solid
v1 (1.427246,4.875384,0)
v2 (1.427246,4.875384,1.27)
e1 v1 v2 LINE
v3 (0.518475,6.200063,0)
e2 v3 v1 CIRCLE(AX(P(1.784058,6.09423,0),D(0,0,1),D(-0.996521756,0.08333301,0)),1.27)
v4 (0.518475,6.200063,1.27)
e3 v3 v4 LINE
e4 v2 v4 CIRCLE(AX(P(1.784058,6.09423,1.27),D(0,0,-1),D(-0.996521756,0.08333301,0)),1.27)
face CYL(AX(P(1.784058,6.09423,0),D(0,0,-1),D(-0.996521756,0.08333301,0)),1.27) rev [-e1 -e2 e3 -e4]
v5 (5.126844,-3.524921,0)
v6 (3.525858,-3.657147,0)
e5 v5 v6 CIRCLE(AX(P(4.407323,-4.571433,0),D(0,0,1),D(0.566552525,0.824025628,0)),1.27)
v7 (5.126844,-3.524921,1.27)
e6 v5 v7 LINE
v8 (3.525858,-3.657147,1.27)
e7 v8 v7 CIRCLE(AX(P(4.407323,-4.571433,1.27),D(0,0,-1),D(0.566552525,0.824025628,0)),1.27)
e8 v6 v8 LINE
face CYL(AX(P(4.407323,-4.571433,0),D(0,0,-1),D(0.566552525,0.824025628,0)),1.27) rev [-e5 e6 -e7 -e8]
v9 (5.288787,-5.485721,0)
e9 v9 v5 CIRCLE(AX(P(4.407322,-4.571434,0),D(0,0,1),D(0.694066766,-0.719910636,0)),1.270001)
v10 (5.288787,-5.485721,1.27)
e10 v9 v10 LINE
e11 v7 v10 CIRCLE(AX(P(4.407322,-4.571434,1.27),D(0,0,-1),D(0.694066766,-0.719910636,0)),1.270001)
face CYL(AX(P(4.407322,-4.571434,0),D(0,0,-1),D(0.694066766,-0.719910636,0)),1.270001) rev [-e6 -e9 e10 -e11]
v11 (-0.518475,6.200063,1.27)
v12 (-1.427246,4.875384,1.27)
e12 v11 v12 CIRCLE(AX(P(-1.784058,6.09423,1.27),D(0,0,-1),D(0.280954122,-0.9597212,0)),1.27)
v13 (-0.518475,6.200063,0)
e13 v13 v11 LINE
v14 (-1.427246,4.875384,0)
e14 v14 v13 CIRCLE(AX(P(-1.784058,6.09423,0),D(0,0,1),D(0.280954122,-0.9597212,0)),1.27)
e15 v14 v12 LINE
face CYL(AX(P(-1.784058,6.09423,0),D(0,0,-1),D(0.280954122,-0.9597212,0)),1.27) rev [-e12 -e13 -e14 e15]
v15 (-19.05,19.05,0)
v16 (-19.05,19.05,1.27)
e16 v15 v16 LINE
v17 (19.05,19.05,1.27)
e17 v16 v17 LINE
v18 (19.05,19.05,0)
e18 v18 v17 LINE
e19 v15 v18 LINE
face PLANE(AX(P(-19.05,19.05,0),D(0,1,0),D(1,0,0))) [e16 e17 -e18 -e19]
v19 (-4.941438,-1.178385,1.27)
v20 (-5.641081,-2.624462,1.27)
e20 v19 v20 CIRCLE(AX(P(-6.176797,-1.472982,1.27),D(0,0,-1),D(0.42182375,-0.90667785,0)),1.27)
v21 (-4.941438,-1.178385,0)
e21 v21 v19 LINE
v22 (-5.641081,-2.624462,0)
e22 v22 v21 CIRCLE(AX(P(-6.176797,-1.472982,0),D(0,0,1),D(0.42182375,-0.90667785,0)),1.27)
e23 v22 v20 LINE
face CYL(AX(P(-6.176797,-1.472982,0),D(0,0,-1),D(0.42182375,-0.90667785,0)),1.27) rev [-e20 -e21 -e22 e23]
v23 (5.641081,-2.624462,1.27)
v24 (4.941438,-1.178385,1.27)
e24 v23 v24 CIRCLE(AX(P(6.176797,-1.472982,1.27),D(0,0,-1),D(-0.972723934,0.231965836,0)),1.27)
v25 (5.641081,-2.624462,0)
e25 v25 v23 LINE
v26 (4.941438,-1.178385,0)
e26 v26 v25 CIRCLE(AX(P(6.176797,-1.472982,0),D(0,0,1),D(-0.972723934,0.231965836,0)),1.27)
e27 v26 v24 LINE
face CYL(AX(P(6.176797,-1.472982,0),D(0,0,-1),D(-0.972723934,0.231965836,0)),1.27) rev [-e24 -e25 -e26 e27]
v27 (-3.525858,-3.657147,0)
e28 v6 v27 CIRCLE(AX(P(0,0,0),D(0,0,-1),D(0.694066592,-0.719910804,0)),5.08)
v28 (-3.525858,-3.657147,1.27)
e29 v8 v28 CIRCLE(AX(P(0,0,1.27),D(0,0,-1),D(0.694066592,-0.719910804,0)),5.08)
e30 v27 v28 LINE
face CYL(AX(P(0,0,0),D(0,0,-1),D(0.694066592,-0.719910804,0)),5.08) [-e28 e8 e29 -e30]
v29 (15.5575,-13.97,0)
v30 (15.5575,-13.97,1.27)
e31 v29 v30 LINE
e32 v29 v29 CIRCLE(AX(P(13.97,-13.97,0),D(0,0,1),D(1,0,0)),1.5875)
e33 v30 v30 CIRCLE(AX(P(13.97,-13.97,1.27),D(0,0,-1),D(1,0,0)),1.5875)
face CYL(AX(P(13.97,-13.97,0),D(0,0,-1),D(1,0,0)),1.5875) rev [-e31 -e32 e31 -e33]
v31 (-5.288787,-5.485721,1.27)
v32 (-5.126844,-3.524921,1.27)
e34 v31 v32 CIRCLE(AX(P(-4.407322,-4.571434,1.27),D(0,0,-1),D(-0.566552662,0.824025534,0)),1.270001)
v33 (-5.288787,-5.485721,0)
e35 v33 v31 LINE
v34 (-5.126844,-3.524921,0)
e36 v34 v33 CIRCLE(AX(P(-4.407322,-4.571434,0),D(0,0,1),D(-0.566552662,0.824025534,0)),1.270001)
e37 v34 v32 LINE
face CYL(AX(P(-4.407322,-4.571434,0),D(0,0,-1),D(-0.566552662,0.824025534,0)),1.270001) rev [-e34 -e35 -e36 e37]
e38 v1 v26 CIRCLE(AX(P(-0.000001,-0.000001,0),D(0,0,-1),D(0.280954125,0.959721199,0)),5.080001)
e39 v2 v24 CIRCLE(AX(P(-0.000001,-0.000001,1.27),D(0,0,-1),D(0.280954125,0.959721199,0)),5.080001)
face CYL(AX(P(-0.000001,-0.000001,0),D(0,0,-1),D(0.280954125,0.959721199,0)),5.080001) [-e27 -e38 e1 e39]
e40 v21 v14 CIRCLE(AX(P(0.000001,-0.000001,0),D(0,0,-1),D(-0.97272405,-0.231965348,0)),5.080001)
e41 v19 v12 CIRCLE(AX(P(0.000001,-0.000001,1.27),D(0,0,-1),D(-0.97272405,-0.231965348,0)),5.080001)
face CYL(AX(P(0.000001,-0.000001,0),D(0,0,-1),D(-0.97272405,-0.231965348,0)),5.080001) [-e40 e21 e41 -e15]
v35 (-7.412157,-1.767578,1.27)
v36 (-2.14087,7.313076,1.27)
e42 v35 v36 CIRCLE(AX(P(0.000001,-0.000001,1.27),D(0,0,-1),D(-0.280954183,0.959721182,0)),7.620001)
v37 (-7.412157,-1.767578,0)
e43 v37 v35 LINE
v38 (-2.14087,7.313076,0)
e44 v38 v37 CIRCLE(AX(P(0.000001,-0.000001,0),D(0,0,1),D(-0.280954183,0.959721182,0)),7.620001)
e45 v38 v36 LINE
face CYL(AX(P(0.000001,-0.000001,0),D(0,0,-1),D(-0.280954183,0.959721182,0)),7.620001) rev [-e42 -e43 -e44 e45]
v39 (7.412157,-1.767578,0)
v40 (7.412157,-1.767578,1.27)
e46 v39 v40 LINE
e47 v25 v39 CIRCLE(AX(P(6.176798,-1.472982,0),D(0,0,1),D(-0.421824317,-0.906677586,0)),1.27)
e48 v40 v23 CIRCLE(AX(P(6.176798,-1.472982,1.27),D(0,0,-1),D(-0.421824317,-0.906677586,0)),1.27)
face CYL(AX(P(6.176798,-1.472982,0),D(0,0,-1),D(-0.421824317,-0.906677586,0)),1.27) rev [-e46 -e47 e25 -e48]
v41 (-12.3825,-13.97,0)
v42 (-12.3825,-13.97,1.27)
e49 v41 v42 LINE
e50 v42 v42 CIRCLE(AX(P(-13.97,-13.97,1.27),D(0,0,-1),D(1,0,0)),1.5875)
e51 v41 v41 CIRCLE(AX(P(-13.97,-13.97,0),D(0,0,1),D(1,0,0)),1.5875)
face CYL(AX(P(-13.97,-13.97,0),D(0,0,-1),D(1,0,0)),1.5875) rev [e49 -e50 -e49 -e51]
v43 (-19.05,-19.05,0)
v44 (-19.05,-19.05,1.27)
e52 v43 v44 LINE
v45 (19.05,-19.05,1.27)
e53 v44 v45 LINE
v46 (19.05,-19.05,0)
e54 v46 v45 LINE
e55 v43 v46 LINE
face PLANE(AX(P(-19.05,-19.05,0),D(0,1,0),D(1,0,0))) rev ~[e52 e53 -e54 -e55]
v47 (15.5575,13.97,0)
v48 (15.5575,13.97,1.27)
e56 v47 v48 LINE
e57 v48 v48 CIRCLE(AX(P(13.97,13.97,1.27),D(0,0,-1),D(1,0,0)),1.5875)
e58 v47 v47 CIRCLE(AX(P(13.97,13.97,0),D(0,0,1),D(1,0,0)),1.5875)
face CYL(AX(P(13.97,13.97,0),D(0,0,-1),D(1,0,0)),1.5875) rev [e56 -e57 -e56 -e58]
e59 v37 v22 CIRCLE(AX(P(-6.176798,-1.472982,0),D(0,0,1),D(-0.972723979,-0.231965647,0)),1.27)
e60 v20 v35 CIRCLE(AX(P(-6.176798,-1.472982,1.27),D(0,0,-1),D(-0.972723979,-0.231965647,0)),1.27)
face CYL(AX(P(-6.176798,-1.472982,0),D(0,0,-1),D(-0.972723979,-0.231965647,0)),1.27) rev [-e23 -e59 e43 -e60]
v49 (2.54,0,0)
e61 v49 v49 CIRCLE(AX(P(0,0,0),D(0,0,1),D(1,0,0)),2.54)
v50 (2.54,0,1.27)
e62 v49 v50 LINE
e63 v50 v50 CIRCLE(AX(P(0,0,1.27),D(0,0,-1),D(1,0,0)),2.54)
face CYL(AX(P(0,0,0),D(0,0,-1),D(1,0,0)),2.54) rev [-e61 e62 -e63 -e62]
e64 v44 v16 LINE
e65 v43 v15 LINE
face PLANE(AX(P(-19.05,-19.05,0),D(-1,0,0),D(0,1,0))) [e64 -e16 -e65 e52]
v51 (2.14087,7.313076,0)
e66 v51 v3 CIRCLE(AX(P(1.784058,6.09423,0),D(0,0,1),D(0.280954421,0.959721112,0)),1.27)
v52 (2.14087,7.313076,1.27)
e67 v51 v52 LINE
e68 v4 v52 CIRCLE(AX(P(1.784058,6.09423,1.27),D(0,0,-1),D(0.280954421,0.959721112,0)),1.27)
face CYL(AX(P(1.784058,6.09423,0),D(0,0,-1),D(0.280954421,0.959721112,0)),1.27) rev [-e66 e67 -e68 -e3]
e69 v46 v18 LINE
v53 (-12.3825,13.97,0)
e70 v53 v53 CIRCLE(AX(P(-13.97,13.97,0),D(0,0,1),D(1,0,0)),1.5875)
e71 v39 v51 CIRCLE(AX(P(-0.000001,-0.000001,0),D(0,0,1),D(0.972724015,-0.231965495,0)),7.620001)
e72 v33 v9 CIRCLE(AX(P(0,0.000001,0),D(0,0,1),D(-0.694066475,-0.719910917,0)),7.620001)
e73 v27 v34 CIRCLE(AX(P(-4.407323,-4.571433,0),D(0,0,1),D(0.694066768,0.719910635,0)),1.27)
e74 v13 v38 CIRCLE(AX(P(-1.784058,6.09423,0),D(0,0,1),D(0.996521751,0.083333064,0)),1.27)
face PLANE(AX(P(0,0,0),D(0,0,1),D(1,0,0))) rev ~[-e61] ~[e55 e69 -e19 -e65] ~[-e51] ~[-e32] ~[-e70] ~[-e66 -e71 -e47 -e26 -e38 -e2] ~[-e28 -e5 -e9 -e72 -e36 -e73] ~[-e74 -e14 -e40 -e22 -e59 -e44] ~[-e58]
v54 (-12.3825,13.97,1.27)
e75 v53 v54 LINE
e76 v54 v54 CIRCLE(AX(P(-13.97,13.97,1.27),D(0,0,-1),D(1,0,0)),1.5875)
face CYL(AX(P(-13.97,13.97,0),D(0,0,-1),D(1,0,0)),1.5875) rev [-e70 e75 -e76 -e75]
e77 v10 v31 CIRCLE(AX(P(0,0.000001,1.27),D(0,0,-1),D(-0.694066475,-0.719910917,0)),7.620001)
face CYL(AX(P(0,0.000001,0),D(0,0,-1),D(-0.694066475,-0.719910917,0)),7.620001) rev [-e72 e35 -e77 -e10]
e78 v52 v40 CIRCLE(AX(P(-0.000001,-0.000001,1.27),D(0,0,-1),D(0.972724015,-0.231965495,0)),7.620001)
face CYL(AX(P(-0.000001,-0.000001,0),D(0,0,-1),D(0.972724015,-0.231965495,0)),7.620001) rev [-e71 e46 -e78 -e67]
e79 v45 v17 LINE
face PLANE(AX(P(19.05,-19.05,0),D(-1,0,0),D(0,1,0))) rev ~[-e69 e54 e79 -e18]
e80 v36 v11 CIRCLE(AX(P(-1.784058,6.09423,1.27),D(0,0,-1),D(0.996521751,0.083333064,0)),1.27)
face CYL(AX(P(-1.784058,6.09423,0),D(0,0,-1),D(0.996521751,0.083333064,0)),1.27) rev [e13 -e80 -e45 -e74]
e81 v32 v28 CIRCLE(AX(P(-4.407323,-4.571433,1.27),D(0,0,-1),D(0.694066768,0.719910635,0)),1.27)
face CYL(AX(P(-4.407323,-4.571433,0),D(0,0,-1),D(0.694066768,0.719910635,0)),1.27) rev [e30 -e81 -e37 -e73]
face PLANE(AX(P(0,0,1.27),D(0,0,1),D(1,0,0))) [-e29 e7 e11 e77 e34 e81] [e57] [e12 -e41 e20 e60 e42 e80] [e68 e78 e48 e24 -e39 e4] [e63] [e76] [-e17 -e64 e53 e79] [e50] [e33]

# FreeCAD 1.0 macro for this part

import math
import FreeCAD as App
import Part
import Sketcher

V = App.Vector
Q = App.Units.Quantity


def add_polygon(sketch, points):
    """Adds a closed chain of lines whose ends are joined by coincident constraints."""
    first, n = sketch.GeometryCount, len(points)
    for a, b in zip(points, points[1:] + points[:1]):
        sketch.addGeometry(Part.LineSegment(App.Vector(*a, 0), App.Vector(*b, 0)), False)
    for i in range(n):
        sketch.addConstraint(Sketcher.Constraint("Coincident", first + i, 2, first + (i + 1) % n, 1))

doc = App.newDocument("Part")
body = doc.addObject("PartDesign::Body", "Body")

sketch1 = doc.addObject("Sketcher::SketchObject", "Sketch")
body.addObject(sketch1)
sketch1.AttachmentSupport = (doc.XY_Plane, [""])
sketch1.MapMode = "FlatFace"
add_polygon(sketch1, [(-19, 19), (-19, -19), (19, -19), (19, 19)])
sketch1.addConstraint([
    Sketcher.Constraint("Vertical", 0),
    Sketcher.Constraint("Horizontal", 1),
    Sketcher.Constraint("Vertical", 2),
    Sketcher.Constraint("Horizontal", 3),
    Sketcher.Constraint("Symmetric", 0, 2, 2, 2, -1, 1),
    Sketcher.Constraint("Equal", 3, 0),
    Sketcher.Constraint("DistanceX", 1, 1, 1, 2, Q("1.5 in")),
])
pad1 = doc.addObject("PartDesign::Pad", "Pad")
body.addObject(pad1)
pad1.Profile = sketch1
pad1.Length = Q("0.05 in")

sketch2 = doc.addObject("Sketcher::SketchObject", "Sketch001")
body.addObject(sketch2)
sketch2.AttachmentSupport = (doc.XY_Plane, [""])
sketch2.MapMode = "FlatFace"
sketch2.addGeometry([
    Part.ArcOfCircle(Part.Circle(V(-1.8, 6.1, 0), V(0, 0, 1), 1.3), math.radians(5), math.radians(106)),
    Part.ArcOfCircle(Part.Circle(V(0, 0, 0), V(0, 0, 1), 7.6), math.radians(106), math.radians(193)),
    Part.ArcOfCircle(Part.Circle(V(-6.2, -1.5, 0), V(0, 0, 1), 1.3), math.radians(-167), math.radians(-65)),
    Part.ArcOfCircle(Part.Circle(V(-6.2, -1.5, 0), V(0, 0, 1), 1.3), math.radians(-65), math.radians(13)),
    Part.ArcOfCircle(Part.Circle(V(0, 0, 0), V(0, 0, 1), 5.1), math.radians(106), math.radians(193)),
    Part.ArcOfCircle(Part.Circle(V(-1.8, 6.1, 0), V(0, 0, 1), 1.3), math.radians(-74), math.radians(5)),
    Part.ArcOfCircle(Part.Circle(V(6.2, -1.5, 0), V(0, 0, 1), 1.3), math.radians(-115), math.radians(-13)),
    Part.ArcOfCircle(Part.Circle(V(0, 0, 0), V(0, 0, 1), 7.6), math.radians(-13), math.radians(74)),
    Part.ArcOfCircle(Part.Circle(V(1.8, 6.1, 0), V(0, 0, 1), 1.3), math.radians(74), math.radians(175)),
    Part.ArcOfCircle(Part.Circle(V(1.8, 6.1, 0), V(0, 0, 1), 1.3), math.radians(175), math.radians(254)),
    Part.ArcOfCircle(Part.Circle(V(0, 0, 0), V(0, 0, 1), 5.1), math.radians(-13), math.radians(74)),
    Part.ArcOfCircle(Part.Circle(V(6.2, -1.5, 0), V(0, 0, 1), 1.3), math.radians(167), math.radians(245)),
    Part.ArcOfCircle(Part.Circle(V(-4.4, -4.6, 0), V(0, 0, 1), 1.3), math.radians(125), math.radians(226)),
    Part.ArcOfCircle(Part.Circle(V(0, 0, 0), V(0, 0, 1), 7.6), math.radians(-134), math.radians(-46)),
    Part.ArcOfCircle(Part.Circle(V(4.4, -4.6, 0), V(0, 0, 1), 1.3), math.radians(-46), math.radians(55)),
    Part.ArcOfCircle(Part.Circle(V(4.4, -4.6, 0), V(0, 0, 1), 1.3), math.radians(55), math.radians(134)),
    Part.ArcOfCircle(Part.Circle(V(0, 0, 0), V(0, 0, 1), 5.1), math.radians(-134), math.radians(-46)),
    Part.ArcOfCircle(Part.Circle(V(-4.4, -4.6, 0), V(0, 0, 1), 1.3), math.radians(46), math.radians(125)),
], False)
sketch2.addConstraint([
    Sketcher.Constraint("Tangent", 0, 2, 1, 1),
    Sketcher.Constraint("Tangent", 1, 2, 2, 1),
    Sketcher.Constraint("Tangent", 2, 2, 3, 1),
    Sketcher.Constraint("Tangent", 3, 2, 4, 2),
    Sketcher.Constraint("Tangent", 4, 1, 5, 1),
    Sketcher.Constraint("Tangent", 5, 2, 0, 1),
    Sketcher.Constraint("Tangent", 6, 2, 7, 1),
    Sketcher.Constraint("Tangent", 7, 2, 8, 1),
    Sketcher.Constraint("Tangent", 8, 2, 9, 1),
    Sketcher.Constraint("Tangent", 9, 2, 10, 2),
    Sketcher.Constraint("Tangent", 10, 1, 11, 1),
    Sketcher.Constraint("Tangent", 11, 2, 6, 1),
    Sketcher.Constraint("Tangent", 12, 2, 13, 1),
    Sketcher.Constraint("Tangent", 13, 2, 14, 1),
    Sketcher.Constraint("Tangent", 14, 2, 15, 1),
    Sketcher.Constraint("Tangent", 15, 2, 16, 2),
    Sketcher.Constraint("Tangent", 16, 1, 17, 1),
    Sketcher.Constraint("Tangent", 17, 2, 12, 1),
    Sketcher.Constraint("Coincident", 1, 3, -1, 1),
    Sketcher.Constraint("Coincident", 4, 3, -1, 1),
    Sketcher.Constraint("Coincident", 7, 3, -1, 1),
    Sketcher.Constraint("Coincident", 10, 3, -1, 1),
    Sketcher.Constraint("Coincident", 13, 3, -1, 1),
    Sketcher.Constraint("Coincident", 16, 3, -1, 1),
    Sketcher.Constraint("Equal", 0, 2),
    Sketcher.Constraint("Equal", 2, 3),
    Sketcher.Constraint("Equal", 5, 6),
    Sketcher.Constraint("Equal", 1, 7),
    Sketcher.Constraint("Equal", 6, 8),
    Sketcher.Constraint("Equal", 8, 9),
    Sketcher.Constraint("Equal", 11, 12),
    Sketcher.Constraint("Equal", 7, 13),
    Sketcher.Constraint("Equal", 12, 14),
    Sketcher.Constraint("Equal", 14, 15),
    Sketcher.Constraint("Symmetric", 5, 2, 8, 2, -2),
    Sketcher.Constraint("Symmetric", 2, 2, 11, 2, -2),
    Sketcher.Constraint("Symmetric", 14, 2, 17, 2, -2),
    Sketcher.Constraint("Radius", 1, Q("0.3000001 in")),
    Sketcher.Constraint("Radius", 4, Q("0.2 in")),
    Sketcher.Constraint("DistanceX", 2, 3, 1, 3, Q("6.176799 mm")),
    Sketcher.Constraint("DistanceY", 13, 2, 14, 2, Q("1.9608 mm")),
    Sketcher.Constraint("DistanceY", -1, 1, 0, 3, Q("6.09423 mm")),
    Sketcher.Constraint("DistanceX", 12, 3, -1, 1, Q("4.407322 mm")),
    Sketcher.Constraint("DistanceX", 2, 2, -1, 1, Q("5.641081 mm")),
    Sketcher.Constraint("DistanceX", 4, 1, 5, 2, Q("0.908771 mm")),
])
pocket1 = doc.addObject("PartDesign::Pocket", "Pocket")
body.addObject(pocket1)
pocket1.Profile = sketch2
pocket1.Length = Q("1 in")
pocket1.Reversed = True

sketch3 = doc.addObject("Sketcher::SketchObject", "Sketch002")
body.addObject(sketch3)
sketch3.AttachmentSupport = (doc.XY_Plane, [""])
sketch3.MapMode = "FlatFace"
sketch3.addGeometry([
    Part.Circle(V(14, 14, 0), V(0, 0, 1), 1.6),
    Part.Circle(V(14, -14, 0), V(0, 0, 1), 1.6),
    Part.Circle(V(-14, -14, 0), V(0, 0, 1), 1.6),
    Part.Circle(V(-14, 14, 0), V(0, 0, 1), 1.6),
    Part.Circle(V(0, 0, 0), V(0, 0, 1), 2.5),
], False)
sketch3.addConstraint([
    Sketcher.Constraint("Coincident", 4, 3, -1, 1),
    Sketcher.Constraint("Equal", 0, 1),
    Sketcher.Constraint("Equal", 1, 2),
    Sketcher.Constraint("Equal", 2, 3),
    Sketcher.Constraint("Symmetric", 0, 3, 2, 3, -1, 1),
    Sketcher.Constraint("Symmetric", 1, 3, 3, 3, -1, 1),
    Sketcher.Constraint("Symmetric", 1, 3, 2, 3, -2),
    Sketcher.Constraint("Diameter", 4, Q("0.2 in")),
    Sketcher.Constraint("Diameter", 0, Q("0.125 in")),
    Sketcher.Constraint("DistanceY", 1, 3, 0, 3, Q("1.1 in")),
    Sketcher.Constraint("DistanceX", 2, 3, 1, 3, Q("1.1 in")),
])
pocket2 = doc.addObject("PartDesign::Pocket", "Pocket001")
body.addObject(pocket2)
pocket2.Profile = sketch3
pocket2.Length = Q("1 in")
pocket2.Reversed = True

doc.recompute()
